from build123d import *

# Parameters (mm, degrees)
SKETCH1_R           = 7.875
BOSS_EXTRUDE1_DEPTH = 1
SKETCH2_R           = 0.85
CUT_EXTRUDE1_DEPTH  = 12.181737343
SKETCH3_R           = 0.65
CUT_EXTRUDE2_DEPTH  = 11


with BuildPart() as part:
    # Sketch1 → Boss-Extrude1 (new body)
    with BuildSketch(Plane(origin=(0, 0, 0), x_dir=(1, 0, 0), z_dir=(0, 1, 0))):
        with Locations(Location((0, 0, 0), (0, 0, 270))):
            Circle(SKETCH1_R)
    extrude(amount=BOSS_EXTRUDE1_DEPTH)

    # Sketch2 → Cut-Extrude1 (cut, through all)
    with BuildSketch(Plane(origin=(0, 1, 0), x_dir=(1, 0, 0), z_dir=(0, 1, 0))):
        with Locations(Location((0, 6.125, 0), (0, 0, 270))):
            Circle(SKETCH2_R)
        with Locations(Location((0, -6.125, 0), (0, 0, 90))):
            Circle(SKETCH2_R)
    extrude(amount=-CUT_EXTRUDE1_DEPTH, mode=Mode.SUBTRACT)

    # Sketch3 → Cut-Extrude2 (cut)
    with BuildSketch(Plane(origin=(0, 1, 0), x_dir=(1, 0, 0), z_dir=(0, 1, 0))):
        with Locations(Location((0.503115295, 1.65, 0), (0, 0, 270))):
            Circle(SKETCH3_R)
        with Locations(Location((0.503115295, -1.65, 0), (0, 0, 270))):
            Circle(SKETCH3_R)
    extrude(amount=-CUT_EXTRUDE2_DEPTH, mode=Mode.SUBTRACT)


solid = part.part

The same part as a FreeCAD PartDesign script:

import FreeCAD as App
import Part
import Sketcher

doc = App.newDocument("Part")
body = doc.addObject("PartDesign::Body", "Body")

sketch1 = body.newObject("Sketcher::SketchObject", "Sketch")
sketch1.AttachmentSupport = (doc.getObject("XZ_Plane"), [""])
sketch1.MapMode = "FlatFace"
sketch1.addGeometry(Part.Circle(App.Vector(0, 0, 0), App.Vector(0, 0, 1), 8), False)
sketch1.addConstraint(Sketcher.Constraint("Coincident", 0, 3, -1, 1))
sketch1.addConstraint(Sketcher.Constraint("Diameter", 0, 15.75))
pad1 = body.newObject("PartDesign::Pad", "Pad")
pad1.Profile = sketch1
pad1.Length = 1
pad1.Reversed = True

sketch2 = body.newObject("Sketcher::SketchObject", "Sketch001")
sketch2.AttachmentSupport = (doc.getObject("XZ_Plane"), [""])
sketch2.MapMode = "FlatFace"
sketch2.AttachmentOffset = App.Placement(App.Vector(0, 0, -1), App.Rotation())
sketch2.addGeometry(Part.Circle(App.Vector(0, -6.1, 0), App.Vector(0, 0, 1), 0.8), False)
sketch2.addGeometry(Part.Circle(App.Vector(0, 6.1, 0), App.Vector(0, 0, 1), 0.8), False)
sketch2.addConstraint(Sketcher.Constraint("Equal", 0, 1))
sketch2.addConstraint(Sketcher.Constraint("Symmetric", 0, 3, 1, 3, -1, 1))
sketch2.addConstraint(Sketcher.Constraint("PointOnObject", 0, 3, -2))
sketch2.addConstraint(Sketcher.Constraint("Diameter", 0, 1.7))
sketch2.addConstraint(Sketcher.Constraint("DistanceY", 0, 3, 1, 3, 12.25))
pocket1 = body.newObject("PartDesign::Pocket", "Pocket")
pocket1.Profile = sketch2
pocket1.Type = "ThroughAll"
pocket1.Reversed = True

sketch3 = body.newObject("Sketcher::SketchObject", "Sketch002")
sketch3.AttachmentSupport = (doc.getObject("XZ_Plane"), [""])
sketch3.MapMode = "FlatFace"
sketch3.AttachmentOffset = App.Placement(App.Vector(0, 0, -1), App.Rotation())
sketch3.addGeometry(Part.Circle(App.Vector(0.5, -1.6, 0), App.Vector(0, 0, 1), 0.7), False)
sketch3.addGeometry(Part.Circle(App.Vector(0.5, 1.6, 0), App.Vector(0, 0, 1), 0.7), False)
sketch3.addConstraint(Sketcher.Constraint("Equal", 0, 1))
sketch3.addConstraint(Sketcher.Constraint("Symmetric", 0, 3, 1, 3, -1))
sketch3.addConstraint(Sketcher.Constraint("Diameter", 0, 1.3))
sketch3.addConstraint(Sketcher.Constraint("DistanceY", 0, 3, 1, 3, 3.3))
sketch3.addConstraint(Sketcher.Constraint("DistanceX", -1, 1, 0, 3, 0.503115))
pocket2 = body.newObject("PartDesign::Pocket", "Pocket001")
pocket2.Profile = sketch3
pocket2.Length = 11
pocket2.Reversed = True

doc.recompute()
